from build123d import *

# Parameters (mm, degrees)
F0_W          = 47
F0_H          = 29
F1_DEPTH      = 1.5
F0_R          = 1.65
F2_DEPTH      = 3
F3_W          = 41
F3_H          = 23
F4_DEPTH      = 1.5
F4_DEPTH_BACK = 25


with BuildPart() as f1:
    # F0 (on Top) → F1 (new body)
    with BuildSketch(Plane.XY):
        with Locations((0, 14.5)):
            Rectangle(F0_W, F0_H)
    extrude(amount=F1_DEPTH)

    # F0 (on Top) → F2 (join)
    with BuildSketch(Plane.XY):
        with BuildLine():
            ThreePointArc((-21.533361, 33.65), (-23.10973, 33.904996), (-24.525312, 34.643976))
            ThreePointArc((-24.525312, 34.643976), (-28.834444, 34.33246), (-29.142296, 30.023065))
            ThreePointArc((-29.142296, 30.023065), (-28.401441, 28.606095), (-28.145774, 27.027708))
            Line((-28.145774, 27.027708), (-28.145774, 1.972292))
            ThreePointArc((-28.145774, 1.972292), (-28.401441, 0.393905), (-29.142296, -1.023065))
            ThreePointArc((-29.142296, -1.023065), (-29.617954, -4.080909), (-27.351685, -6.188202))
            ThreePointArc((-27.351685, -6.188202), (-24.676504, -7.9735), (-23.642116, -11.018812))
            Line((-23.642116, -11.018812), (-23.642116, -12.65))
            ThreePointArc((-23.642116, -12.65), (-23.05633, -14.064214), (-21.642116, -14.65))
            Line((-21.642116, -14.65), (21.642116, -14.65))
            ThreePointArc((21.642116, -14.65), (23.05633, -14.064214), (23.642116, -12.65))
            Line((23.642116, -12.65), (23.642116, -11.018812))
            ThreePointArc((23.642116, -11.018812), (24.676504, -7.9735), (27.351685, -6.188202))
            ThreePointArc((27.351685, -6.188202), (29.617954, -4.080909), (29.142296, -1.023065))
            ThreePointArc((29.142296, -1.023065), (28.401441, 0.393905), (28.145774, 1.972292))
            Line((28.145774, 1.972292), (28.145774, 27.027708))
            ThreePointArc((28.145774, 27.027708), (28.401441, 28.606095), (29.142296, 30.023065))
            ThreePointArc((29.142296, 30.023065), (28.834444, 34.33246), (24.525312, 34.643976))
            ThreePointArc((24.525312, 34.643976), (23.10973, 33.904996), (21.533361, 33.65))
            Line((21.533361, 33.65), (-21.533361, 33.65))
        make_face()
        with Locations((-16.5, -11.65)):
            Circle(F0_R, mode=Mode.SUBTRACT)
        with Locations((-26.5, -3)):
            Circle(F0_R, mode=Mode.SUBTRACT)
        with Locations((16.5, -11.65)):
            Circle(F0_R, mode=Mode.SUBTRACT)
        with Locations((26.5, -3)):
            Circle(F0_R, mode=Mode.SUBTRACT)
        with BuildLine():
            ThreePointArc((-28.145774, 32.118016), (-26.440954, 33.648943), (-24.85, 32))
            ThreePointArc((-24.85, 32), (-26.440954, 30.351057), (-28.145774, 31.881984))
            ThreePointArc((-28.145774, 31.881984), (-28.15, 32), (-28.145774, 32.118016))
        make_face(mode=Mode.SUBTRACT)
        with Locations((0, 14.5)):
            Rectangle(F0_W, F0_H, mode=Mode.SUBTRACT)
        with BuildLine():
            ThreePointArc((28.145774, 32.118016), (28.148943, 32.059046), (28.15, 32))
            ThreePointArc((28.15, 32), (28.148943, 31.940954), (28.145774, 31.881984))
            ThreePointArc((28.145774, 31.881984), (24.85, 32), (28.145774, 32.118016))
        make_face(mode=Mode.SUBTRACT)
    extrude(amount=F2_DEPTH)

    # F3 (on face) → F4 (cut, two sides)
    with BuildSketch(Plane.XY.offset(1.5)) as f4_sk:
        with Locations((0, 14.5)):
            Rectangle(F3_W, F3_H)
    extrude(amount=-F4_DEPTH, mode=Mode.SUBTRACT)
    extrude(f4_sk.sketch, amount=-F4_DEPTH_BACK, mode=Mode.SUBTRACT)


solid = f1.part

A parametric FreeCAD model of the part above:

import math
import FreeCAD as App
import Part
import Sketcher
from FreeCAD import Vector


def add_polygon(sketch, points):
    """Adds a closed chain of lines whose ends are joined by coincident constraints."""
    first, n = sketch.GeometryCount, len(points)
    for a, b in zip(points, points[1:] + points[:1]):
        sketch.addGeometry(Part.LineSegment(App.Vector(*a, 0), App.Vector(*b, 0)), False)
    for i in range(n):
        sketch.addConstraint(Sketcher.Constraint("Coincident", first + i, 2, first + (i + 1) % n, 1))

doc = App.newDocument("Part")
params = doc.addObject("Spreadsheet::Sheet", "Params")
for row, (alias, value) in enumerate([
    ("sketch1_width", "47 mm"),
    ("sketch1_height", "29 mm"),
    ("pad1_length", "1.5 mm"),
    ("sketch2_radius", "5 mm"),
    ("sketch2_radius2", "1.999999 mm"),
    ("sketch2_radius3", "1.999999 mm"),
    ("sketch2_radius4", "5 mm"),
    ("sketch2_diameter", "3.3 mm"),
    ("pad2_length", "3 mm"),
    ("sketch3_width", "41 mm"),
    ("sketch3_height", "23 mm"),
    ("pocket1_length", "1.5 mm"),
    ("pocket2_length", "25 mm"),
], start=1):
    params.set(f"A{row}", alias)
    params.set(f"B{row}", "=" + value)
    params.setAlias(f"B{row}", alias)

body = doc.addObject("PartDesign::Body", "Body")

# Sketch on XY plane
sketch1 = body.newObject("Sketcher::SketchObject", "Sketch")
sketch1.AttachmentSupport = (doc.getObject("XY_Plane"), [""])
sketch1.MapMode = "FlatFace"
add_polygon(sketch1, [(-23.5, 29), (-23.5, 0), (23.5, 0), (23.5, 29)])  # lines 0-3
sketch1.addConstraint(Sketcher.Constraint("Vertical", 0))
sketch1.addConstraint(Sketcher.Constraint("Horizontal", 1))
sketch1.addConstraint(Sketcher.Constraint("Vertical", 2))
sketch1.addConstraint(Sketcher.Constraint("Horizontal", 3))
sketch1.addConstraint(Sketcher.Constraint("Symmetric", 0, 2, 1, 2, -1, 1))
sketch1.addConstraint(Sketcher.Constraint("DistanceX", 1, 1, 1, 2, 47.0))
sketch1.addConstraint(Sketcher.Constraint("DistanceY", 0, 2, 0, 1, 29.0))
sketch1.setExpression("Constraints[9]", "Params.sketch1_width")
sketch1.setExpression("Constraints[10]", "Params.sketch1_height")
pad1 = body.newObject("PartDesign::Pad", "Pad")
pad1.Profile = sketch1
pad1.setExpression("Length", "Params.pad1_length")

# Sketch on XY plane
sketch2 = body.newObject("Sketcher::SketchObject", "Sketch001")
sketch2.AttachmentSupport = (doc.getObject("XY_Plane"), [""])
sketch2.MapMode = "FlatFace"
sketch2.addGeometry(Part.ArcOfCircle(Part.Circle(Vector(-21.533362, 38.649995, 0), Vector(0, 0, 1), 4.999995), math.radians(-126.754712), math.radians(-89.999983)), False)  # 0
sketch2.addGeometry(Part.ArcOfCircle(Part.Circle(Vector(-26.5, 32, 0), Vector(0, 0, 1), 3.3), math.radians(53.245313), math.radians(216.803399)), False)  # 1
sketch2.addGeometry(Part.ArcOfCircle(Part.Circle(Vector(-33.145772, 27.027709, 0), Vector(0, 0, 1), 4.999998), math.radians(-0.000009), math.radians(36.803431)), False)  # 2
sketch2.addGeometry(Part.LineSegment(Vector(-28.145774, 27.027708, 0), Vector(-28.145774, 1.972292, 0)), False)  # 3
sketch2.addGeometry(Part.ArcOfCircle(Part.Circle(Vector(-33.145772, 1.972291, 0), Vector(0, 0, 1), 4.999998), math.radians(-36.803431), math.radians(0.000009)), False)  # 4
sketch2.addGeometry(Part.ArcOfCircle(Part.Circle(Vector(-26.500001, -3, 0), Vector(0, 0, 1), 3.3), math.radians(143.196586), math.radians(255.043465)), False)  # 5
sketch2.addGeometry(Part.ArcOfCircle(Part.Circle(Vector(-28.642116, -11.018811, 0), Vector(0, 0, 1), 5), math.radians(-0.000008), math.radians(75.043467)), False)  # 6
sketch2.addGeometry(Part.LineSegment(Vector(-23.642116, -11.018812, 0), Vector(-23.642116, -12.65, 0)), False)  # 7
sketch2.addGeometry(Part.ArcOfCircle(Part.Circle(Vector(-21.642117, -12.650001, 0), Vector(0, 0, 1), 1.999999), math.radians(179.999957), math.radians(270.000043)), False)  # 8
sketch2.addGeometry(Part.LineSegment(Vector(-21.642116, -14.65, 0), Vector(21.642116, -14.65, 0)), False)  # 9
sketch2.addGeometry(Part.ArcOfCircle(Part.Circle(Vector(21.642117, -12.650001, 0), Vector(0, 0, 1), 1.999999), math.radians(-90.000043), math.radians(0.000043)), False)  # 10
sketch2.addGeometry(Part.LineSegment(Vector(23.642116, -12.65, 0), Vector(23.642116, -11.018812, 0)), False)  # 11
sketch2.addGeometry(Part.ArcOfCircle(Part.Circle(Vector(28.642116, -11.018811, 0), Vector(0, 0, 1), 5), math.radians(104.956533), math.radians(180.000008)), False)  # 12
sketch2.addGeometry(Part.ArcOfCircle(Part.Circle(Vector(26.500001, -3, 0), Vector(0, 0, 1), 3.3), math.radians(-75.043465), math.radians(36.803414)), False)  # 13
sketch2.addGeometry(Part.ArcOfCircle(Part.Circle(Vector(33.145772, 1.972291, 0), Vector(0, 0, 1), 4.999998), math.radians(179.999991), math.radians(216.803431)), False)  # 14
sketch2.addGeometry(Part.LineSegment(Vector(28.145774, 1.972292, 0), Vector(28.145774, 27.027708, 0)), False)  # 15
sketch2.addGeometry(Part.ArcOfCircle(Part.Circle(Vector(33.145772, 27.027709, 0), Vector(0, 0, 1), 4.999998), math.radians(143.196569), math.radians(180.000009)), False)  # 16
sketch2.addGeometry(Part.ArcOfCircle(Part.Circle(Vector(26.5, 32, 0), Vector(0, 0, 1), 3.3), math.radians(-36.803399), math.radians(126.754687)), False)  # 17
sketch2.addGeometry(Part.ArcOfCircle(Part.Circle(Vector(21.533362, 38.649995, 0), Vector(0, 0, 1), 4.999995), math.radians(-90.000017), math.radians(-53.245288)), False)  # 18
sketch2.addGeometry(Part.LineSegment(Vector(21.533361, 33.65, 0), Vector(-21.533361, 33.65, 0)), False)  # 19
sketch2.addGeometry(Part.Circle(Vector(-16.5, -11.65, 0), Vector(0, 0, 1), 1.65), False)  # 20
sketch2.addGeometry(Part.Circle(Vector(-26.5, -3, 0), Vector(0, 0, 1), 1.65), False)  # 21
sketch2.addGeometry(Part.Circle(Vector(16.5, -11.65, 0), Vector(0, 0, 1), 1.65), False)  # 22
sketch2.addGeometry(Part.Circle(Vector(26.5, -3, 0), Vector(0, 0, 1), 1.65), False)  # 23
sketch2.addGeometry(Part.ArcOfCircle(Part.Circle(Vector(-26.500019, 32, 0), Vector(0, 0, 1), 1.649981), math.radians(175.898377), math.radians(184.101623)), False)  # 24
sketch2.addGeometry(Part.ArcOfCircle(Part.Circle(Vector(-26.5, 32, 0), Vector(0, 0, 1), 1.65), math.radians(0.000005), math.radians(175.898421)), False)  # 25
sketch2.addGeometry(Part.ArcOfCircle(Part.Circle(Vector(-26.5, 32, 0), Vector(0, 0, 1), 1.65), math.radians(-175.898421), math.radians(-0.000005)), False)  # 26
add_polygon(sketch2, [(23.5, 0), (-23.5, 0), (-23.5, 29), (23.5, 29)])  # lines 27-30
sketch2.addGeometry(Part.ArcOfCircle(Part.Circle(Vector(26.5, 32, 0), Vector(0, 0, 1), 1.65), math.radians(4.101574), math.radians(355.898426)), False)  # 31
sketch2.addGeometry(Part.ArcOfCircle(Part.Circle(Vector(26.499778, 31.999991, 0), Vector(0, 0, 1), 1.650222), math.radians(0.000301), math.radians(4.101322)), False)  # 32
sketch2.addGeometry(Part.ArcOfCircle(Part.Circle(Vector(26.499778, 32.000009, 0), Vector(0, 0, 1), 1.650222), math.radians(-4.101322), math.radians(-0.000301)), False)  # 33
sketch2.addConstraint(Sketcher.Constraint("Coincident", 0, 1, 1, 1))
sketch2.addConstraint(Sketcher.Constraint("Coincident", 1, 2, 2, 2))
sketch2.addConstraint(Sketcher.Constraint("Coincident", 2, 1, 3, 1))
sketch2.addConstraint(Sketcher.Constraint("Coincident", 3, 2, 4, 2))
sketch2.addConstraint(Sketcher.Constraint("Coincident", 4, 1, 5, 1))
sketch2.addConstraint(Sketcher.Constraint("Coincident", 5, 2, 6, 2))
sketch2.addConstraint(Sketcher.Constraint("Coincident", 6, 1, 7, 1))
sketch2.addConstraint(Sketcher.Constraint("Coincident", 7, 2, 8, 1))
sketch2.addConstraint(Sketcher.Constraint("Coincident", 8, 2, 9, 1))
sketch2.addConstraint(Sketcher.Constraint("Coincident", 9, 2, 10, 1))
sketch2.addConstraint(Sketcher.Constraint("Coincident", 10, 2, 11, 1))
sketch2.addConstraint(Sketcher.Constraint("Coincident", 11, 2, 12, 2))
sketch2.addConstraint(Sketcher.Constraint("Coincident", 12, 1, 13, 1))
sketch2.addConstraint(Sketcher.Constraint("Coincident", 13, 2, 14, 2))
sketch2.addConstraint(Sketcher.Constraint("Coincident", 14, 1, 15, 1))
sketch2.addConstraint(Sketcher.Constraint("Coincident", 15, 2, 16, 2))
sketch2.addConstraint(Sketcher.Constraint("Coincident", 16, 1, 17, 1))
sketch2.addConstraint(Sketcher.Constraint("Coincident", 17, 2, 18, 2))
sketch2.addConstraint(Sketcher.Constraint("Coincident", 18, 1, 19, 1))
sketch2.addConstraint(Sketcher.Constraint("Coincident", 19, 2, 0, 2))
sketch2.addConstraint(Sketcher.Constraint("Coincident", 24, 1, 25, 2))
sketch2.addConstraint(Sketcher.Constraint("Coincident", 25, 1, 26, 2))
sketch2.addConstraint(Sketcher.Constraint("Coincident", 26, 1, 24, 2))
sketch2.addConstraint(Sketcher.Constraint("Coincident", 31, 1, 32, 2))
sketch2.addConstraint(Sketcher.Constraint("Coincident", 32, 1, 33, 2))
sketch2.addConstraint(Sketcher.Constraint("Coincident", 33, 1, 31, 2))
sketch2.addConstraint(Sketcher.Constraint("Vertical", 3))
sketch2.addConstraint(Sketcher.Constraint("Vertical", 7))
sketch2.addConstraint(Sketcher.Constraint("Horizontal", 9))
sketch2.addConstraint(Sketcher.Constraint("Vertical", 11))
sketch2.addConstraint(Sketcher.Constraint("Vertical", 15))
sketch2.addConstraint(Sketcher.Constraint("Horizontal", 19))
sketch2.addConstraint(Sketcher.Constraint("Horizontal", 27))
sketch2.addConstraint(Sketcher.Constraint("Vertical", 28))
sketch2.addConstraint(Sketcher.Constraint("Horizontal", 29))
sketch2.addConstraint(Sketcher.Constraint("Vertical", 30))
sketch2.addConstraint(Sketcher.Constraint("Coincident", 21, 3, 5, 3))
sketch2.addConstraint(Sketcher.Constraint("Coincident", 23, 3, 13, 3))
sketch2.addConstraint(Sketcher.Constraint("Coincident", 25, 3, 1, 3))
sketch2.addConstraint(Sketcher.Constraint("Coincident", 26, 3, 1, 3))
sketch2.addConstraint(Sketcher.Constraint("Coincident", 31, 3, 17, 3))
sketch2.addConstraint(Sketcher.Constraint("PointOnObject", 27, 2, -1))
sketch2.addConstraint(Sketcher.Constraint("Radius", 6, 5.0))
sketch2.addConstraint(Sketcher.Constraint("Radius", 8, 1.999999))
sketch2.addConstraint(Sketcher.Constraint("Radius", 10, 1.999999))
sketch2.addConstraint(Sketcher.Constraint("Radius", 12, 5.0))
sketch2.addConstraint(Sketcher.Constraint("Diameter", 20, 3.3))
sketch2.addConstraint(Sketcher.Constraint("Diameter", 21, 3.3))
sketch2.addConstraint(Sketcher.Constraint("Diameter", 22, 3.3))
sketch2.addConstraint(Sketcher.Constraint("Diameter", 23, 3.3))
sketch2.addConstraint(Sketcher.Constraint("Radius", 1, 3.3))
sketch2.addConstraint(Sketcher.Constraint("Radius", 5, 3.3))
sketch2.addConstraint(Sketcher.Constraint("Radius", 13, 3.3))
sketch2.addConstraint(Sketcher.Constraint("Radius", 17, 3.3))
sketch2.addConstraint(Sketcher.Constraint("DistanceX", 27, 2, 27, 1, 47.0))
sketch2.addConstraint(Sketcher.Constraint("DistanceY", 28, 1, 28, 2, 29.0))
sketch2.addConstraint(Sketcher.Constraint("Radius", 25, 1.65))
sketch2.addConstraint(Sketcher.Constraint("Radius", 31, 1.65))
sketch2.addConstraint(Sketcher.Constraint("DistanceY", -1, 1, 1, 3, 32.0))
sketch2.addConstraint(Sketcher.Constraint("DistanceY", 5, 3, -1, 1, 3.0))
sketch2.addConstraint(Sketcher.Constraint("DistanceY", 13, 3, -1, 1, 3.0))
sketch2.addConstraint(Sketcher.Constraint("DistanceY", -1, 1, 17, 3, 32.0))
sketch2.addConstraint(Sketcher.Constraint("DistanceY", -1, 1, 25, 1, 32.0))
sketch2.addConstraint(Sketcher.Constraint("DistanceY", -1, 1, 32, 1, 32.0))
sketch2.addConstraint(Sketcher.Constraint("DistanceX", 5, 3, 13, 3, 53.000001))
sketch2.addConstraint(Sketcher.Constraint("DistanceY", 8, 3, 20, 3, 1.000001))
sketch2.addConstraint(Sketcher.Constraint("DistanceX", 5, 3, 20, 3, 10.000001))
sketch2.addConstraint(Sketcher.Constraint("DistanceY", 10, 3, 22, 3, 1.000001))
sketch2.addConstraint(Sketcher.Constraint("DistanceX", 22, 3, 13, 3, 10.000001))
sketch2.addConstraint(Sketcher.Constraint("DistanceY", 7, 2, 20, 3, 1.0))
sketch2.addConstraint(Sketcher.Constraint("DistanceX", 7, 2, 8, 2, 2.0))
sketch2.addConstraint(Sketcher.Constraint("DistanceX", 9, 2, 12, 3, 7.0))
sketch2.addConstraint(Sketcher.Constraint("DistanceY", 9, 2, 10, 2, 2.0))
sketch2.addConstraint(Sketcher.Constraint("DistanceX", 21, 3, 27, 2, 3.0))
sketch2.addConstraint(Sketcher.Constraint("DistanceX", 1, 3, 28, 2, 3.0))
sketch2.addConstraint(Sketcher.Constraint("DistanceX", 29, 2, 17, 3, 3.0))
sketch2.addConstraint(Sketcher.Constraint("DistanceX", 1, 3, -1, 1, 26.5))
sketch2.addConstraint(Sketcher.Constraint("DistanceY", 8, 3, -1, 1, 12.650001))
sketch2.addConstraint(Sketcher.Constraint("DistanceY", -1, 1, 18, 1, 33.65))
sketch2.addConstraint(Sketcher.Constraint("DistanceX", -1, 1, 32, 1, 28.15))
sketch2.addConstraint(Sketcher.Constraint("Radius", 24, 1.649981))
sketch2.addConstraint(Sketcher.Constraint("Radius", 0, 4.999995))
sketch2.addConstraint(Sketcher.Constraint("Radius", 2, 4.999998))
sketch2.addConstraint(Sketcher.Constraint("Radius", 4, 4.999998))
sketch2.addConstraint(Sketcher.Constraint("Radius", 14, 4.999998))
sketch2.addConstraint(Sketcher.Constraint("Radius", 16, 4.999998))
sketch2.addConstraint(Sketcher.Constraint("Radius", 18, 4.999995))
sketch2.addConstraint(Sketcher.Constraint("Radius", 32, 1.650222))
sketch2.addConstraint(Sketcher.Constraint("Radius", 33, 1.650222))
sketch2.addConstraint(Sketcher.Constraint("DistanceY", 12, 1, -1, 1, 6.188202))
sketch2.addConstraint(Sketcher.Constraint("DistanceY", 14, 3, 32, 3, 30.0277))
sketch2.addConstraint(Sketcher.Constraint("DistanceY", 5, 2, 5, 3, 3.188202))
sketch2.addConstraint(Sketcher.Constraint("DistanceY", 15, 2, 33, 3, 4.972301))
sketch2.addConstraint(Sketcher.Constraint("DistanceX", 9, 1, 9, 2, 43.284232))
sketch2.addConstraint(Sketcher.Constraint("DistanceX", 19, 2, 19, 1, 43.066722))
sketch2.addConstraint(Sketcher.Constraint("DistanceY", 3, 2, 3, 1, 25.055416))
sketch2.addConstraint(Sketcher.Constraint("DistanceY", 7, 2, 7, 1, 1.631188))
sketch2.addConstraint(Sketcher.Constraint("DistanceY", 11, 1, 11, 2, 1.631188))
sketch2.addConstraint(Sketcher.Constraint("DistanceY", 15, 1, 15, 2, 25.055416))
sketch2.addConstraint(Sketcher.Constraint("DistanceX", 2, 3, -1, 1, 33.145772))
sketch2.addConstraint(Sketcher.Constraint("DistanceY", 6, 3, -1, 1, 11.018811))
sketch2.addConstraint(Sketcher.Constraint("DistanceY", -1, 1, 2, 1, 27.027708))
sketch2.addConstraint(Sketcher.Constraint("DistanceX", -1, 1, 18, 1, 21.533361))
sketch2.addConstraint(Sketcher.Constraint("DistanceX", 0, 1, 0, 3, 2.99195))
sketch2.addConstraint(Sketcher.Constraint("DistanceX", 1, 2, 2, 1, 0.996522))
sketch2.addConstraint(Sketcher.Constraint("DistanceX", 4, 1, 3, 2, 0.996522))
sketch2.addConstraint(Sketcher.Constraint("DistanceX", 12, 1, 13, 2, 1.790611))
sketch2.addConstraint(Sketcher.Constraint("DistanceX", 15, 2, 16, 1, 0.996522))
sketch2.addConstraint(Sketcher.Constraint("DistanceX", 18, 3, 17, 2, 2.99195))
sketch2.addConstraint(Sketcher.Constraint("DistanceX", 1, 2, 24, 1, 0.996522))
sketch2.addConstraint(Sketcher.Constraint("DistanceY", 26, 1, 24, 1, 0.236032))
sketch2.addConstraint(Sketcher.Constraint("DistanceX", 31, 1, 16, 1, 0.996522))
sketch2.addConstraint(Sketcher.Constraint("DistanceY", 33, 1, 31, 1, 0.236032))
sketch2.setExpression("Constraints[46]", "Params.sketch2_radius")
sketch2.setExpression("Constraints[47]", "Params.sketch2_radius2")
sketch2.setExpression("Constraints[48]", "Params.sketch2_radius3")
sketch2.setExpression("Constraints[49]", "Params.sketch2_radius4")
sketch2.setExpression("Constraints[50]", "Params.sketch2_diameter")
pad2 = body.newObject("PartDesign::Pad", "Pad001")
pad2.Profile = sketch2
pad2.setExpression("Length", "Params.pad2_length")

# Sketch on XY plane
sketch3 = body.newObject("Sketcher::SketchObject", "Sketch002")
sketch3.AttachmentSupport = (doc.getObject("XY_Plane"), [""])
sketch3.MapMode = "FlatFace"
sketch3.AttachmentOffset = App.Placement(Vector(0, 0, 1.5), App.Rotation())
add_polygon(sketch3, [(-20.5, 26), (-20.5, 3), (20.5, 3), (20.5, 26)])  # lines 0-3
sketch3.addConstraint(Sketcher.Constraint("Vertical", 0))
sketch3.addConstraint(Sketcher.Constraint("Horizontal", 1))
sketch3.addConstraint(Sketcher.Constraint("Vertical", 2))
sketch3.addConstraint(Sketcher.Constraint("Horizontal", 3))
sketch3.addConstraint(Sketcher.Constraint("DistanceX", 1, 1, 1, 2, 41.0))
sketch3.addConstraint(Sketcher.Constraint("DistanceY", 0, 2, 0, 1, 23.0))
sketch3.addConstraint(Sketcher.Constraint("DistanceY", -1, 1, 0, 2, 3.0))
sketch3.addConstraint(Sketcher.Constraint("DistanceX", 0, 2, -1, 1, 20.5))
sketch3.setExpression("Constraints[8]", "Params.sketch3_width")
sketch3.setExpression("Constraints[9]", "Params.sketch3_height")
pocket1 = body.newObject("PartDesign::Pocket", "Pocket")
pocket1.Profile = sketch3
pocket1.setExpression("Length", "Params.pocket1_length")
pocket2 = body.newObject("PartDesign::Pocket", "Pocket001")
pocket2.Profile = sketch3
pocket2.setExpression("Length", "Params.pocket2_length")

doc.recompute()
